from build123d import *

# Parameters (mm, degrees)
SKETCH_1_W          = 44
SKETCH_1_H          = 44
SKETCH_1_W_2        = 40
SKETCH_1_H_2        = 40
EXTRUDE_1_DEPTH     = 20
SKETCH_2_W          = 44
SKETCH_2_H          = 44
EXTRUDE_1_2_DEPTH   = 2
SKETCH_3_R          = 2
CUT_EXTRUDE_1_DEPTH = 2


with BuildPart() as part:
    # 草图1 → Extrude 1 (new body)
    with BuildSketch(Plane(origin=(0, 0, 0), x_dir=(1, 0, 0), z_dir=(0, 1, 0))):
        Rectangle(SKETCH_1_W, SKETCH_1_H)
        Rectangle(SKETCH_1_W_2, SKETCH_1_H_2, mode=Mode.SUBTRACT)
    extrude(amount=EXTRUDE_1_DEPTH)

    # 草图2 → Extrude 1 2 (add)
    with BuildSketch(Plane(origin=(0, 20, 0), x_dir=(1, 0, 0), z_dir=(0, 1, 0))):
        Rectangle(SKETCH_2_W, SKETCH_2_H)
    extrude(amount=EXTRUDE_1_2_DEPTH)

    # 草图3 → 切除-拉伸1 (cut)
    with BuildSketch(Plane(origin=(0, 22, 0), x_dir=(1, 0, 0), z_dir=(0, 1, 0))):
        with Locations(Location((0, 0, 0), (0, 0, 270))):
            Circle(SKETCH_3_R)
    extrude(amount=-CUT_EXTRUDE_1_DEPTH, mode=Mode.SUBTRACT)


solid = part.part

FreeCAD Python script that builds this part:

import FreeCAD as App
import Part
import Sketcher

V = App.Vector

doc = App.newDocument("Part")
body = doc.addObject("PartDesign::Body", "Body")

# Sketch on XZ plane
sketch1 = body.newObject("Sketcher::SketchObject", "Sketch")
sketch1.AttachmentSupport = (doc.getObject("XZ_Plane"), [""])
sketch1.MapMode = "FlatFace"
sketch1.addGeometry([
    Part.LineSegment(V(-22, -22, 0), V(-22, 22, 0)),  # 0
    Part.LineSegment(V(-22, 22, 0), V(22, 22, 0)),  # 1
    Part.LineSegment(V(22, 22, 0), V(22, -22, 0)),  # 2
    Part.LineSegment(V(22, -22, 0), V(-22, -22, 0)),  # 3
    Part.LineSegment(V(20, 20, 0), V(-20, 20, 0)),  # 4
    Part.LineSegment(V(-20, 20, 0), V(-20, -20, 0)),  # 5
    Part.LineSegment(V(-20, -20, 0), V(20, -20, 0)),  # 6
    Part.LineSegment(V(20, -20, 0), V(20, 20, 0)),  # 7
], False)
sketch1.addConstraint([
    Sketcher.Constraint("Coincident", 0, 2, 1, 1),
    Sketcher.Constraint("Coincident", 1, 2, 2, 1),
    Sketcher.Constraint("Coincident", 2, 2, 3, 1),
    Sketcher.Constraint("Coincident", 3, 2, 0, 1),
    Sketcher.Constraint("Coincident", 4, 2, 5, 1),
    Sketcher.Constraint("Coincident", 5, 2, 6, 1),
    Sketcher.Constraint("Coincident", 6, 2, 7, 1),
    Sketcher.Constraint("Coincident", 7, 2, 4, 1),
    Sketcher.Constraint("Vertical", 0),
    Sketcher.Constraint("Horizontal", 1),
    Sketcher.Constraint("Vertical", 2),
    Sketcher.Constraint("Horizontal", 3),
    Sketcher.Constraint("Horizontal", 4),
    Sketcher.Constraint("Vertical", 5),
    Sketcher.Constraint("Horizontal", 6),
    Sketcher.Constraint("Vertical", 7),
    Sketcher.Constraint("Symmetric", 0, 2, 2, 2, -1, 1),
    Sketcher.Constraint("Symmetric", 4, 2, 6, 2, -1, 1),
    Sketcher.Constraint("Equal", 3, 0),
    Sketcher.Constraint("Equal", 6, 5),
    Sketcher.Constraint("DistanceX", 1, 1, 1, 2, 44.0),
    Sketcher.Constraint("DistanceX", 4, 2, 4, 1, 40.0),
])
pad1 = body.newObject("PartDesign::Pad", "Pad")
pad1.Profile = sketch1
pad1.Length = 20
pad1.Reversed = True

# Sketch on XZ plane
sketch2 = body.newObject("Sketcher::SketchObject", "Sketch001")
sketch2.AttachmentSupport = (doc.getObject("XZ_Plane"), [""])
sketch2.MapMode = "FlatFace"
sketch2.AttachmentOffset = App.Placement(V(0, 0, -20), App.Rotation())
sketch2.addGeometry([
    Part.LineSegment(V(-22, -22, 0), V(-22, 22, 0)),
    Part.LineSegment(V(-22, 22, 0), V(22, 22, 0)),
    Part.LineSegment(V(22, 22, 0), V(22, -22, 0)),
    Part.LineSegment(V(22, -22, 0), V(-22, -22, 0)),
], False)
sketch2.addConstraint([
    Sketcher.Constraint("Coincident", 0, 2, 1, 1),
    Sketcher.Constraint("Coincident", 1, 2, 2, 1),
    Sketcher.Constraint("Coincident", 2, 2, 3, 1),
    Sketcher.Constraint("Coincident", 3, 2, 0, 1),
    Sketcher.Constraint("Vertical", 0),
    Sketcher.Constraint("Horizontal", 1),
    Sketcher.Constraint("Vertical", 2),
    Sketcher.Constraint("Horizontal", 3),
    Sketcher.Constraint("Symmetric", 0, 2, 2, 2, -1, 1),
    Sketcher.Constraint("Equal", 3, 0),
    Sketcher.Constraint("DistanceX", 1, 1, 1, 2, 44.0),
])
pad2 = body.newObject("PartDesign::Pad", "Pad001")
pad2.Profile = sketch2
pad2.Length = 2
pad2.Reversed = True

# Sketch on XZ plane
sketch3 = body.newObject("Sketcher::SketchObject", "Sketch002")
sketch3.AttachmentSupport = (doc.getObject("XZ_Plane"), [""])
sketch3.MapMode = "FlatFace"
sketch3.AttachmentOffset = App.Placement(V(0, 0, -22), App.Rotation())
sketch3.addGeometry(Part.Circle(V(0, 0, 0), V(0, 0, 1), 2), False)
sketch3.addConstraint([
    Sketcher.Constraint("Coincident", 0, 3, -1, 1),
    Sketcher.Constraint("Diameter", 0, 4.0),
])
pocket1 = body.newObject("PartDesign::Pocket", "Pocket")
pocket1.Profile = sketch3
pocket1.Length = 2
pocket1.Reversed = True

doc.recompute()
